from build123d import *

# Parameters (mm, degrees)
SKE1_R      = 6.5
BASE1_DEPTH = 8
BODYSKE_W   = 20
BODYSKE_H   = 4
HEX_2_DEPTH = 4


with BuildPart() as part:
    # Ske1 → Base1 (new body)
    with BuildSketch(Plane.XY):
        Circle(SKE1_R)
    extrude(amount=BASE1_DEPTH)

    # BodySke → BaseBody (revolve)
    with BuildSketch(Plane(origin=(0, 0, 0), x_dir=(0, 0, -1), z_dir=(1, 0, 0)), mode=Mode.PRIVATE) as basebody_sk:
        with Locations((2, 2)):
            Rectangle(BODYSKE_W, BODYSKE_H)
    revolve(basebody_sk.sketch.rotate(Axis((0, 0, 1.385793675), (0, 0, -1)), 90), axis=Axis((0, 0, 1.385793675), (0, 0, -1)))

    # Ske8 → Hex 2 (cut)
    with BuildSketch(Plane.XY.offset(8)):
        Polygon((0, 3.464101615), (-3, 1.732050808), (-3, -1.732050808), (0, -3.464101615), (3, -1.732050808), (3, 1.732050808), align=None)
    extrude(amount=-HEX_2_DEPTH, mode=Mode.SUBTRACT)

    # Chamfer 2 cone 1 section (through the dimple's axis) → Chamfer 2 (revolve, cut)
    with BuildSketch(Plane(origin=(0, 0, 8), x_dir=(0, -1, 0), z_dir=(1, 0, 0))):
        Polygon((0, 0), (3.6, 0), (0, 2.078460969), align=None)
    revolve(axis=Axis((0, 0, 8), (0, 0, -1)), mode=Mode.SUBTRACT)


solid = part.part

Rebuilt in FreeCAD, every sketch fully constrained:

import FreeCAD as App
import Part
import Sketcher
Q = App.Units.Quantity

doc = App.newDocument("Part")
params = doc.addObject("Spreadsheet::Sheet", "Params")
for row, (alias, value) in enumerate([
    ("sketch1_diameter", "13 mm"),
    ("pad1_length", "8 mm"),
    ("sketch2_width", "4 mm"),
    ("sketch2_height", "20 mm"),
    ("revolution_angle", "360 deg"),
    ("pocket1_length", "4 mm"),
    ("sketch4_width", "3.6 mm"),
    ("groove_angle", "360 deg"),
], start=1):
    params.set(f"A{row}", alias)
    params.set(f"B{row}", "=" + value)
    params.setAlias(f"B{row}", alias)

body = doc.addObject("PartDesign::Body", "Body")

sketch1 = body.newObject("Sketcher::SketchObject", "Sketch")
sketch1.AttachmentSupport = (doc.getObject("XY_Plane"), [""])
sketch1.MapMode = "FlatFace"
sketch1.addGeometry(Part.Circle(App.Vector(0, 0, 0), App.Vector(0, 0, 1), 6), False)
sketch1.addConstraint([
    Sketcher.Constraint("Coincident", 0, 3, -1, 1),
    Sketcher.Constraint("Diameter", 0, Q("13 mm")),
])
sketch1.setExpression("Constraints[1]", "Params.sketch1_diameter")
pad1 = body.newObject("PartDesign::Pad", "Pad")
pad1.Profile = sketch1
pad1.setExpression("Length", "Params.pad1_length")

sketch2 = body.newObject("Sketcher::SketchObject", "Sketch001")
sketch2.AttachmentSupport = (doc.getObject("YZ_Plane"), [""])
sketch2.MapMode = "FlatFace"
sketch2.addGeometry([
    Part.LineSegment(App.Vector(4, 8, 0), App.Vector(0, 8, 0)),
    Part.LineSegment(App.Vector(0, 8, 0), App.Vector(0, -12, 0)),
    Part.LineSegment(App.Vector(0, -12, 0), App.Vector(4, -12, 0)),
    Part.LineSegment(App.Vector(4, -12, 0), App.Vector(4, 8, 0)),
], False)
sketch2.addConstraint([
    Sketcher.Constraint("Coincident", 0, 2, 1, 1),
    Sketcher.Constraint("Coincident", 1, 2, 2, 1),
    Sketcher.Constraint("Coincident", 2, 2, 3, 1),
    Sketcher.Constraint("Coincident", 3, 2, 0, 1),
    Sketcher.Constraint("Horizontal", 0),
    Sketcher.Constraint("Vertical", 1),
    Sketcher.Constraint("Horizontal", 2),
    Sketcher.Constraint("Vertical", 3),
    Sketcher.Constraint("PointOnObject", 0, 2, -2),
    Sketcher.Constraint("DistanceX", 0, 2, 0, 1, Q("4 mm")),
    Sketcher.Constraint("DistanceY", 1, 2, 1, 1, Q("20 mm")),
    Sketcher.Constraint("DistanceY", -1, 1, 0, 2, Q("8 mm")),
])
sketch2.setExpression("Constraints[9]", "Params.sketch2_width")
sketch2.setExpression("Constraints[10]", "Params.sketch2_height")
revolution = body.newObject("PartDesign::Revolution", "Revolution")
revolution.Profile = sketch2
revolution.ReferenceAxis = (sketch2, ["V_Axis"])
revolution.setExpression("Angle", "Params.revolution_angle")

sketch3 = body.newObject("Sketcher::SketchObject", "Sketch002")
sketch3.AttachmentSupport = (doc.getObject("XY_Plane"), [""])
sketch3.MapMode = "FlatFace"
sketch3.AttachmentOffset = App.Placement(App.Vector(0, 0, 8), App.Rotation())
sketch3.addGeometry([
    Part.LineSegment(App.Vector(0, 3.5, 0), App.Vector(-3, 1.7, 0)),
    Part.LineSegment(App.Vector(-3, 1.7, 0), App.Vector(-3, -1.7, 0)),
    Part.LineSegment(App.Vector(-3, -1.7, 0), App.Vector(0, -3.5, 0)),
    Part.LineSegment(App.Vector(0, -3.5, 0), App.Vector(3, -1.7, 0)),
    Part.LineSegment(App.Vector(3, -1.7, 0), App.Vector(3, 1.7, 0)),
    Part.LineSegment(App.Vector(3, 1.7, 0), App.Vector(0, 3.5, 0)),
], False)
sketch3.addConstraint([
    Sketcher.Constraint("Coincident", 0, 2, 1, 1),
    Sketcher.Constraint("Coincident", 1, 2, 2, 1),
    Sketcher.Constraint("Coincident", 2, 2, 3, 1),
    Sketcher.Constraint("Coincident", 3, 2, 4, 1),
    Sketcher.Constraint("Coincident", 4, 2, 5, 1),
    Sketcher.Constraint("Coincident", 5, 2, 0, 1),
    Sketcher.Constraint("Vertical", 1),
    Sketcher.Constraint("Vertical", 4),
    Sketcher.Constraint("Symmetric", 0, 2, 3, 2, -1, 1),
    Sketcher.Constraint("Symmetric", 2, 2, 5, 2, -1, 1),
    Sketcher.Constraint("PointOnObject", 2, 2, -2),
    Sketcher.Constraint("Parallel", 2, 5),
    Sketcher.Constraint("Horizontal", 1, 2, 3, 2),
    Sketcher.Constraint("Angle", 0, Q("-150 deg")),
    Sketcher.Constraint("DistanceX", 0, 2, -1, 1, Q("3 mm")),
    Sketcher.Constraint("DistanceY", 1, 2, 1, 1, Q("3.464102 mm")),
])
pocket1 = body.newObject("PartDesign::Pocket", "Pocket")
pocket1.Profile = sketch3
pocket1.setExpression("Length", "Params.pocket1_length")

sketch4 = body.newObject("Sketcher::SketchObject", "Sketch003")
sketch4.AttachmentSupport = (doc.getObject("YZ_Plane"), [""])
sketch4.MapMode = "FlatFace"
sketch4.addGeometry([
    Part.LineSegment(App.Vector(0, 8, 0), App.Vector(-3.6, 8, 0)),
    Part.LineSegment(App.Vector(-3.6, 8, 0), App.Vector(0, 5.9, 0)),
    Part.LineSegment(App.Vector(0, 5.9, 0), App.Vector(0, 8, 0)),
], False)
sketch4.addConstraint([
    Sketcher.Constraint("Coincident", 0, 2, 1, 1),
    Sketcher.Constraint("Coincident", 1, 2, 2, 1),
    Sketcher.Constraint("Coincident", 2, 2, 0, 1),
    Sketcher.Constraint("Horizontal", 0),
    Sketcher.Constraint("Vertical", 2),
    Sketcher.Constraint("PointOnObject", 1, 2, -2),
    Sketcher.Constraint("Angle", 1, Q("-30 deg")),
    Sketcher.Constraint("DistanceX", 0, 2, 0, 1, Q("3.6 mm")),
    Sketcher.Constraint("DistanceY", -1, 1, 0, 2, Q("8 mm")),
])
sketch4.setExpression("Constraints[7]", "Params.sketch4_width")
groove = body.newObject("PartDesign::Groove", "Groove")
groove.Profile = sketch4
groove.ReferenceAxis = (sketch4, ["V_Axis"])
groove.setExpression("Angle", "Params.groove_angle")

doc.recompute()
